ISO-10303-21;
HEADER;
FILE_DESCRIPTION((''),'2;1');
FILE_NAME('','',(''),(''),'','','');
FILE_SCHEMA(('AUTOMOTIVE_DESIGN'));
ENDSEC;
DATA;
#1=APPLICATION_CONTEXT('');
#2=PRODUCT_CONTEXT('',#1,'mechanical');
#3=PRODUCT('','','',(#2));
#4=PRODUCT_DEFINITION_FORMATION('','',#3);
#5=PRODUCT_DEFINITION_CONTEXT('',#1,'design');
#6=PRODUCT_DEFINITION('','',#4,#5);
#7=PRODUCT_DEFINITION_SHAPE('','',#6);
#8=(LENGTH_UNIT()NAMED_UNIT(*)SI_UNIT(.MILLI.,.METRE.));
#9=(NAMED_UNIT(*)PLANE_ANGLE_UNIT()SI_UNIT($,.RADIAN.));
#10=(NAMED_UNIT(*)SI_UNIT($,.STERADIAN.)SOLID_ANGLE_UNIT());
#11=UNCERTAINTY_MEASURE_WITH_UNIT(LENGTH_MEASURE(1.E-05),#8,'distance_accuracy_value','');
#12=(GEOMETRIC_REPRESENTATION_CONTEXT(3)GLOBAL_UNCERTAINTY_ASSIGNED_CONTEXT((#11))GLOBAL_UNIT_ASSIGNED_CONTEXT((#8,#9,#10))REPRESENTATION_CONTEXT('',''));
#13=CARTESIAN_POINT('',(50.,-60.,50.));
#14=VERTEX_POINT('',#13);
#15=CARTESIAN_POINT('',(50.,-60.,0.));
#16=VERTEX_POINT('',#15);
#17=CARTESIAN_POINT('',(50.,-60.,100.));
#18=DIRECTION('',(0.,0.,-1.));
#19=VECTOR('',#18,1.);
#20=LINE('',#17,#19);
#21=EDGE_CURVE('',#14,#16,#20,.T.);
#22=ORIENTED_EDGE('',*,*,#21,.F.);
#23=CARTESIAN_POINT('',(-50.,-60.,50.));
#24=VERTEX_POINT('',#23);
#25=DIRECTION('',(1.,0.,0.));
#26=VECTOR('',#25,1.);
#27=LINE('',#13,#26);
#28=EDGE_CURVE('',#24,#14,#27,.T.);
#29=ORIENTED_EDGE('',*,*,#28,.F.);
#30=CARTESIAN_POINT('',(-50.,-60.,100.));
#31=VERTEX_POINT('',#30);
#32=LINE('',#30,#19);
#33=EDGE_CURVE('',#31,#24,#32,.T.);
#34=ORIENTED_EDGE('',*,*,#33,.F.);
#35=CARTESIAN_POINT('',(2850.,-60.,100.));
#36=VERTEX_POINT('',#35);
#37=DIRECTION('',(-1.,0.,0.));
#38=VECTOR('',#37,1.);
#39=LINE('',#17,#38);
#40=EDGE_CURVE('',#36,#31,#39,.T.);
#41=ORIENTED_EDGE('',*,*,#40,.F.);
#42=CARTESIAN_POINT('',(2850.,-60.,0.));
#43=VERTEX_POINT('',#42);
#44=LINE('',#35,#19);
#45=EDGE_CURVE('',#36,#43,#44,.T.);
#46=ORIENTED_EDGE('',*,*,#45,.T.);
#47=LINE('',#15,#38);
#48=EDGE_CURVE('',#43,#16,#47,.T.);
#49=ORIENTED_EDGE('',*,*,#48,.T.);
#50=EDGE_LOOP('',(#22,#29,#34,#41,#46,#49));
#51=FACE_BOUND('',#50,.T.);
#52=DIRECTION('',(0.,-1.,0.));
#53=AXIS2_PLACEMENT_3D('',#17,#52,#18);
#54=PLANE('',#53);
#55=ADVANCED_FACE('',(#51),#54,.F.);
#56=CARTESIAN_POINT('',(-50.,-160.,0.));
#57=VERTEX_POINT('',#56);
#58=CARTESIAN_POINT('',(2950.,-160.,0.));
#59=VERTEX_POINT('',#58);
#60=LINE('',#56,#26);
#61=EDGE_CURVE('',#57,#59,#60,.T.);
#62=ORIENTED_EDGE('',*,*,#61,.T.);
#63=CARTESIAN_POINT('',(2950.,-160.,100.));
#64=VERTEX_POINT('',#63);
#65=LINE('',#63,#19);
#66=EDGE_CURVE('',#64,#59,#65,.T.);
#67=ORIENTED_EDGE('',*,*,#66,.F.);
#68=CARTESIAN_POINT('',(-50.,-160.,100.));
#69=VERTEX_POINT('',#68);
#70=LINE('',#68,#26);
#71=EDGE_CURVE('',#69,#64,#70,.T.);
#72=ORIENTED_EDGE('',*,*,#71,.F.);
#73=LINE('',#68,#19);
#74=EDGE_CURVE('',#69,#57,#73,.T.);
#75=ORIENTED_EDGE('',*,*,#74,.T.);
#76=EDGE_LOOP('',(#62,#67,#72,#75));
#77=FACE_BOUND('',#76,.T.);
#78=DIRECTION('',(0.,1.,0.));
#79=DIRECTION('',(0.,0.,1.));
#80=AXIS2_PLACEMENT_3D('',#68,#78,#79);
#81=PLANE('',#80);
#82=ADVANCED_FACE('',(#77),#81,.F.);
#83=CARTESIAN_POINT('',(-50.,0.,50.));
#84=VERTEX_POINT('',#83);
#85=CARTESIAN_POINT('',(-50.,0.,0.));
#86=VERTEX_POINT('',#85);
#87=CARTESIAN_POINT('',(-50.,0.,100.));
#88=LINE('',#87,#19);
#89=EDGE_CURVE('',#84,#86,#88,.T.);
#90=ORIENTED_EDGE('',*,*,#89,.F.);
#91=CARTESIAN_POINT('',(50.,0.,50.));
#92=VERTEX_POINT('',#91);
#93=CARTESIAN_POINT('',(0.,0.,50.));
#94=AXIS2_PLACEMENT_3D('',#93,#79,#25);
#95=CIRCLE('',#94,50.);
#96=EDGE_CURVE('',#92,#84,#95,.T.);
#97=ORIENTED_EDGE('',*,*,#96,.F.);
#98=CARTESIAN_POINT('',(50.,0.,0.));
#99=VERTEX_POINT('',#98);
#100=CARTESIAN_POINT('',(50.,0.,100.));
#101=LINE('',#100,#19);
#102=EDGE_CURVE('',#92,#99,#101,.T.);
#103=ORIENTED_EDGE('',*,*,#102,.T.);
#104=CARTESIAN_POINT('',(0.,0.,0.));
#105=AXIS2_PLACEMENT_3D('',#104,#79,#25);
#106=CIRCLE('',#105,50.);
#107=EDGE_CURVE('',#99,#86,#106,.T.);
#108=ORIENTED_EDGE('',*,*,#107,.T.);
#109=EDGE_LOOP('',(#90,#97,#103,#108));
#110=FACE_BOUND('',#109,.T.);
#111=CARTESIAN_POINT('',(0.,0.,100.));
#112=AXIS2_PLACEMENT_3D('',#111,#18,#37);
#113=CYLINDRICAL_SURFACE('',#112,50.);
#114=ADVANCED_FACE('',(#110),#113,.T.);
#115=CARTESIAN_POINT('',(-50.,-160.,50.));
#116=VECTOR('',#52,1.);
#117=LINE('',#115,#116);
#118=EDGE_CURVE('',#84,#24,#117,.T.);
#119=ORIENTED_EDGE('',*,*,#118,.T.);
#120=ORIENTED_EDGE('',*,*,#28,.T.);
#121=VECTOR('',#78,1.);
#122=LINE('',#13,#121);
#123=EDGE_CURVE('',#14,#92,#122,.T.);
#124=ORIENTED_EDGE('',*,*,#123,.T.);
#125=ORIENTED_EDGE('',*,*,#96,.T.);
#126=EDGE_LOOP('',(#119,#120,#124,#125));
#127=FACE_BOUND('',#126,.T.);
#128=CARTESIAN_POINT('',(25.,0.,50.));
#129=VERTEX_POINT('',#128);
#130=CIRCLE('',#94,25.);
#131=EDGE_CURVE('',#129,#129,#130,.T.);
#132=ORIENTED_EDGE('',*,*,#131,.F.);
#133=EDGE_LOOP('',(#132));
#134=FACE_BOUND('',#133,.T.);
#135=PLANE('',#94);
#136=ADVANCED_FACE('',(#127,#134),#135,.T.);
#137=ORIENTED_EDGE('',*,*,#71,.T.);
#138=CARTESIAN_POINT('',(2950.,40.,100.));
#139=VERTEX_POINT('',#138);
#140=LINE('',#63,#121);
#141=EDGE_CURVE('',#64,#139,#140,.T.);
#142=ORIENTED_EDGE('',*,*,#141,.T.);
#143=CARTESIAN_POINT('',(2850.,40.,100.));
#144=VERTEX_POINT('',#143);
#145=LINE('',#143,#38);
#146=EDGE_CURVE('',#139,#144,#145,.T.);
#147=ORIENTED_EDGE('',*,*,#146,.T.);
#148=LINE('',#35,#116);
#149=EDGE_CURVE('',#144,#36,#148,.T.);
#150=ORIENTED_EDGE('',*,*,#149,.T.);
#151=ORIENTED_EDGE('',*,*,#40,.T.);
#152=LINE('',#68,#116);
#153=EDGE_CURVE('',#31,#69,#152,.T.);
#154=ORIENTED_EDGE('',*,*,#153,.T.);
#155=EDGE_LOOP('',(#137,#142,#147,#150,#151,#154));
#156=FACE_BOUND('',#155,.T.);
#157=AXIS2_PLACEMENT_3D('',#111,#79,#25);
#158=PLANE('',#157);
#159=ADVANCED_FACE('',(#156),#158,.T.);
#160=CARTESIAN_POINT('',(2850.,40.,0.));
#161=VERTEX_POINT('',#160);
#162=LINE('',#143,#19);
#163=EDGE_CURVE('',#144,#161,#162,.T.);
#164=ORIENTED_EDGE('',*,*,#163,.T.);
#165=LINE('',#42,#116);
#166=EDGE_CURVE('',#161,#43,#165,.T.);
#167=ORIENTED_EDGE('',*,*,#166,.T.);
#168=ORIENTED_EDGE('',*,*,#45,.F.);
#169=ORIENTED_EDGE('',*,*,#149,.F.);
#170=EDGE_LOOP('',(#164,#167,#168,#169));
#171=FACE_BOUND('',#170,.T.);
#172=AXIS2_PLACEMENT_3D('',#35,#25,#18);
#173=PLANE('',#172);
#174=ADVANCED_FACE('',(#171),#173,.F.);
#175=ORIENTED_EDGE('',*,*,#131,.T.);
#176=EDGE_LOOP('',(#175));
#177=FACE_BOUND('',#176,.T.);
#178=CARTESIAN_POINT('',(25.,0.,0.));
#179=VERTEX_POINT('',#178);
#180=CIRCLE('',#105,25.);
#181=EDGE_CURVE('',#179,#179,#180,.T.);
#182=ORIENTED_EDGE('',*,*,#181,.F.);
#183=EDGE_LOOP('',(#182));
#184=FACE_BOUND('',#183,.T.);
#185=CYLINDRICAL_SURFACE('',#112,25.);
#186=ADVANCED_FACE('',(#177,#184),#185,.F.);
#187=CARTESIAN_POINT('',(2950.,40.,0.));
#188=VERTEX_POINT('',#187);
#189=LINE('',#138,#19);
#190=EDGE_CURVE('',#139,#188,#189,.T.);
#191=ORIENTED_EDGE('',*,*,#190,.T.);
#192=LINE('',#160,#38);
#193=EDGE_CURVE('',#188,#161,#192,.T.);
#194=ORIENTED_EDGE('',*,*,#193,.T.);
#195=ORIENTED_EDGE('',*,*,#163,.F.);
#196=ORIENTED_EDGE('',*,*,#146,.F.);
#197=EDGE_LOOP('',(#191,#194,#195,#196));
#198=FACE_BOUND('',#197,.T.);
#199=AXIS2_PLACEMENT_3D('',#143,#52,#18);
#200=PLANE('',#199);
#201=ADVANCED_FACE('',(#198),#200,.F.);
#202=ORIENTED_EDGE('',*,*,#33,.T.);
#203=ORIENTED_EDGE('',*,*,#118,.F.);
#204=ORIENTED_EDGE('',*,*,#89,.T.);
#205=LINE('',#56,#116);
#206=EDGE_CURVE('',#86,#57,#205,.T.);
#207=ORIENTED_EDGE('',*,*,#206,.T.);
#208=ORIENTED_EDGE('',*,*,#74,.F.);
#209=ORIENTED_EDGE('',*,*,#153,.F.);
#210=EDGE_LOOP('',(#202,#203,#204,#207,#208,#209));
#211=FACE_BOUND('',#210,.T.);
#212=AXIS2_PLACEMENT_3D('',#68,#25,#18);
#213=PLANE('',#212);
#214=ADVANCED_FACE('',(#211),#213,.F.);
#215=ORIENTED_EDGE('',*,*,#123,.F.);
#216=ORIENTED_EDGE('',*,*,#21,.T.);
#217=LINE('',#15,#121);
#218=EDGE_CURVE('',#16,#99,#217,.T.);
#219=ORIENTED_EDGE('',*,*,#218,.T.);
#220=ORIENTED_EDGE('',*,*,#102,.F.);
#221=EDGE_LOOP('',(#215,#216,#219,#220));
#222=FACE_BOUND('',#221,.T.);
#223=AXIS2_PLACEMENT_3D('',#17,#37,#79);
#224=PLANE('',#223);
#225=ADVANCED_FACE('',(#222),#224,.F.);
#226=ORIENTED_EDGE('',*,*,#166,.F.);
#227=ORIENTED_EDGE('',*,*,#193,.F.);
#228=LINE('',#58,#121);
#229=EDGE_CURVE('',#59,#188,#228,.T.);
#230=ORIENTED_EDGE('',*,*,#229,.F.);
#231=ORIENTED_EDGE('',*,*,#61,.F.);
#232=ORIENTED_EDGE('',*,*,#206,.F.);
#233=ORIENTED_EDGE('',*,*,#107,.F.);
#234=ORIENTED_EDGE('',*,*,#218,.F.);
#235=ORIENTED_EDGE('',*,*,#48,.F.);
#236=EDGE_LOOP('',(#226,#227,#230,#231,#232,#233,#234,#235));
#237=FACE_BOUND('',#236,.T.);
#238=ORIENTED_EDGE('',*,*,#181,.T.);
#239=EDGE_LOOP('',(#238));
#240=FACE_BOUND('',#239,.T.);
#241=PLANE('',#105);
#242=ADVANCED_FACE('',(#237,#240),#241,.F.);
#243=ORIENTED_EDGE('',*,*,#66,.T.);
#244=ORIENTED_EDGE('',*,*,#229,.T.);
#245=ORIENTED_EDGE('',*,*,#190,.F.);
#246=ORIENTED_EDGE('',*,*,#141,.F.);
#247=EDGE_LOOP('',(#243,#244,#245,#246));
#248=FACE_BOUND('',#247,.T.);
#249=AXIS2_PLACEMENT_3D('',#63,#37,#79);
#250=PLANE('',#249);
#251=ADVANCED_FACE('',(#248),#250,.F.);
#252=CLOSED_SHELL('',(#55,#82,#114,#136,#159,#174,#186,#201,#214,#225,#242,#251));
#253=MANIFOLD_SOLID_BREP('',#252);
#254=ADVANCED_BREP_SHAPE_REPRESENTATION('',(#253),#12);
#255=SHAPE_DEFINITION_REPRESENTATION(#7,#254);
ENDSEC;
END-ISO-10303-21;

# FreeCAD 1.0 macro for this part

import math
import FreeCAD as App
import Part
import Sketcher
from FreeCAD import Vector
Q = App.Units.Quantity


def add_polygon(sketch, points):
    """Adds a closed chain of lines whose ends are joined by coincident constraints."""
    first, n = sketch.GeometryCount, len(points)
    for a, b in zip(points, points[1:] + points[:1]):
        sketch.addGeometry(Part.LineSegment(App.Vector(*a, 0), App.Vector(*b, 0)), False)
    for i in range(n):
        sketch.addConstraint(Sketcher.Constraint("Coincident", first + i, 2, first + (i + 1) % n, 1))

doc = App.newDocument("Part")
params = doc.addObject("Spreadsheet::Sheet", "Params")
for row, (alias, value) in enumerate([
    ("sketch1_diameter", "50 mm"),
    ("sketch1_radius", "50 mm"),
    ("sketch1_width", "3000 mm"),
    ("sketch1_width2", "100 mm"),
    ("sketch1_height", "200 mm"),
    ("pad1_length", "100 mm"),
    ("pocket1_length", "50 mm"),
], start=1):
    params.set(f"A{row}", alias)
    params.set(f"B{row}", "=" + value)
    params.setAlias(f"B{row}", alias)

body = doc.addObject("PartDesign::Body", "Body")

sketch1 = body.newObject("Sketcher::SketchObject", "Sketch")
sketch1.AttachmentSupport = (doc.getObject("XY_Plane"), [""])
sketch1.MapMode = "FlatFace"
sketch1.addGeometry(Part.LineSegment(Vector(-50, -160, 0), Vector(2950, -160, 0)), False)
sketch1.addGeometry(Part.LineSegment(Vector(2950, -160, 0), Vector(2950, 40, 0)), False)
sketch1.addGeometry(Part.LineSegment(Vector(2950, 40, 0), Vector(2850, 40, 0)), False)
sketch1.addGeometry(Part.LineSegment(Vector(2850, 40, 0), Vector(2850, -60, 0)), False)
sketch1.addGeometry(Part.LineSegment(Vector(2850, -60, 0), Vector(50, -60, 0)), False)
sketch1.addGeometry(Part.LineSegment(Vector(50, -60, 0), Vector(50, 0, 0)), False)
sketch1.addGeometry(Part.ArcOfCircle(Part.Circle(Vector(0, 0, 0), Vector(0, 0, 1), 50), math.radians(0), math.radians(180)), False)
sketch1.addGeometry(Part.LineSegment(Vector(-50, 0, 0), Vector(-50, -160, 0)), False)
sketch1.addGeometry(Part.Circle(Vector(0, 0, 0), Vector(0, 0, 1), 25), False)
sketch1.addConstraint(Sketcher.Constraint("Coincident", 0, 2, 1, 1))
sketch1.addConstraint(Sketcher.Constraint("Coincident", 1, 2, 2, 1))
sketch1.addConstraint(Sketcher.Constraint("Coincident", 2, 2, 3, 1))
sketch1.addConstraint(Sketcher.Constraint("Coincident", 3, 2, 4, 1))
sketch1.addConstraint(Sketcher.Constraint("Coincident", 4, 2, 5, 1))
sketch1.addConstraint(Sketcher.Constraint("Tangent", 5, 2, 6, 1))
sketch1.addConstraint(Sketcher.Constraint("Tangent", 6, 2, 7, 1))
sketch1.addConstraint(Sketcher.Constraint("Coincident", 7, 2, 0, 1))
sketch1.addConstraint(Sketcher.Constraint("Horizontal", 0))
sketch1.addConstraint(Sketcher.Constraint("Vertical", 1))
sketch1.addConstraint(Sketcher.Constraint("Horizontal", 2))
sketch1.addConstraint(Sketcher.Constraint("Vertical", 3))
sketch1.addConstraint(Sketcher.Constraint("Horizontal", 4))
sketch1.addConstraint(Sketcher.Constraint("Vertical", 5))
sketch1.addConstraint(Sketcher.Constraint("Vertical", 7))
sketch1.addConstraint(Sketcher.Constraint("Coincident", 6, 3, -1, 1))
sketch1.addConstraint(Sketcher.Constraint("Coincident", 8, 3, -1, 1))
sketch1.addConstraint(Sketcher.Constraint("Equal", 2, 3))
sketch1.addConstraint(Sketcher.Constraint("Diameter", 8, Q("50 mm")))
sketch1.addConstraint(Sketcher.Constraint("Radius", 6, Q("50 mm")))
sketch1.addConstraint(Sketcher.Constraint("DistanceX", 0, 1, 0, 2, Q("3000 mm")))
sketch1.addConstraint(Sketcher.Constraint("DistanceX", 2, 2, 2, 1, Q("100 mm")))
sketch1.addConstraint(Sketcher.Constraint("DistanceY", 1, 1, 1, 2, Q("200 mm")))
sketch1.addConstraint(Sketcher.Constraint("DistanceY", 5, 1, 5, 2, Q("60 mm")))
sketch1.setExpression("Constraints[18]", "Params.sketch1_diameter")
sketch1.setExpression("Constraints[19]", "Params.sketch1_radius")
sketch1.setExpression("Constraints[20]", "Params.sketch1_width")
sketch1.setExpression("Constraints[21]", "Params.sketch1_width2")
sketch1.setExpression("Constraints[22]", "Params.sketch1_height")
pad1 = body.newObject("PartDesign::Pad", "Pad")
pad1.Profile = sketch1
pad1.setExpression("Length", "Params.pad1_length")

sketch2 = body.newObject("Sketcher::SketchObject", "Sketch001")
sketch2.AttachmentSupport = (doc.getObject("XY_Plane"), [""])
sketch2.MapMode = "FlatFace"
sketch2.AttachmentOffset = App.Placement(Vector(0, 0, 100), App.Rotation())
add_polygon(sketch2, [(-91, 74), (-91, -60), (50, -60), (50, 74)])
sketch2.addConstraint(Sketcher.Constraint("Vertical", 0))
sketch2.addConstraint(Sketcher.Constraint("Horizontal", 1))
sketch2.addConstraint(Sketcher.Constraint("Vertical", 2))
sketch2.addConstraint(Sketcher.Constraint("Horizontal", 3))
sketch2.addConstraint(Sketcher.Constraint("DistanceY", 0, 2, -1, 1, Q("60 mm")))
sketch2.addConstraint(Sketcher.Constraint("DistanceX", -1, 1, 1, 2, Q("50 mm")))
sketch2.addConstraint(Sketcher.Constraint("DistanceX", 1, 1, 1, 2, Q("140.942961 mm")))
sketch2.addConstraint(Sketcher.Constraint("DistanceY", 0, 2, 0, 1, Q("134.262185 mm")))
pocket1 = body.newObject("PartDesign::Pocket", "Pocket")
pocket1.Profile = sketch2
pocket1.setExpression("Length", "Params.pocket1_length")

doc.recompute()
